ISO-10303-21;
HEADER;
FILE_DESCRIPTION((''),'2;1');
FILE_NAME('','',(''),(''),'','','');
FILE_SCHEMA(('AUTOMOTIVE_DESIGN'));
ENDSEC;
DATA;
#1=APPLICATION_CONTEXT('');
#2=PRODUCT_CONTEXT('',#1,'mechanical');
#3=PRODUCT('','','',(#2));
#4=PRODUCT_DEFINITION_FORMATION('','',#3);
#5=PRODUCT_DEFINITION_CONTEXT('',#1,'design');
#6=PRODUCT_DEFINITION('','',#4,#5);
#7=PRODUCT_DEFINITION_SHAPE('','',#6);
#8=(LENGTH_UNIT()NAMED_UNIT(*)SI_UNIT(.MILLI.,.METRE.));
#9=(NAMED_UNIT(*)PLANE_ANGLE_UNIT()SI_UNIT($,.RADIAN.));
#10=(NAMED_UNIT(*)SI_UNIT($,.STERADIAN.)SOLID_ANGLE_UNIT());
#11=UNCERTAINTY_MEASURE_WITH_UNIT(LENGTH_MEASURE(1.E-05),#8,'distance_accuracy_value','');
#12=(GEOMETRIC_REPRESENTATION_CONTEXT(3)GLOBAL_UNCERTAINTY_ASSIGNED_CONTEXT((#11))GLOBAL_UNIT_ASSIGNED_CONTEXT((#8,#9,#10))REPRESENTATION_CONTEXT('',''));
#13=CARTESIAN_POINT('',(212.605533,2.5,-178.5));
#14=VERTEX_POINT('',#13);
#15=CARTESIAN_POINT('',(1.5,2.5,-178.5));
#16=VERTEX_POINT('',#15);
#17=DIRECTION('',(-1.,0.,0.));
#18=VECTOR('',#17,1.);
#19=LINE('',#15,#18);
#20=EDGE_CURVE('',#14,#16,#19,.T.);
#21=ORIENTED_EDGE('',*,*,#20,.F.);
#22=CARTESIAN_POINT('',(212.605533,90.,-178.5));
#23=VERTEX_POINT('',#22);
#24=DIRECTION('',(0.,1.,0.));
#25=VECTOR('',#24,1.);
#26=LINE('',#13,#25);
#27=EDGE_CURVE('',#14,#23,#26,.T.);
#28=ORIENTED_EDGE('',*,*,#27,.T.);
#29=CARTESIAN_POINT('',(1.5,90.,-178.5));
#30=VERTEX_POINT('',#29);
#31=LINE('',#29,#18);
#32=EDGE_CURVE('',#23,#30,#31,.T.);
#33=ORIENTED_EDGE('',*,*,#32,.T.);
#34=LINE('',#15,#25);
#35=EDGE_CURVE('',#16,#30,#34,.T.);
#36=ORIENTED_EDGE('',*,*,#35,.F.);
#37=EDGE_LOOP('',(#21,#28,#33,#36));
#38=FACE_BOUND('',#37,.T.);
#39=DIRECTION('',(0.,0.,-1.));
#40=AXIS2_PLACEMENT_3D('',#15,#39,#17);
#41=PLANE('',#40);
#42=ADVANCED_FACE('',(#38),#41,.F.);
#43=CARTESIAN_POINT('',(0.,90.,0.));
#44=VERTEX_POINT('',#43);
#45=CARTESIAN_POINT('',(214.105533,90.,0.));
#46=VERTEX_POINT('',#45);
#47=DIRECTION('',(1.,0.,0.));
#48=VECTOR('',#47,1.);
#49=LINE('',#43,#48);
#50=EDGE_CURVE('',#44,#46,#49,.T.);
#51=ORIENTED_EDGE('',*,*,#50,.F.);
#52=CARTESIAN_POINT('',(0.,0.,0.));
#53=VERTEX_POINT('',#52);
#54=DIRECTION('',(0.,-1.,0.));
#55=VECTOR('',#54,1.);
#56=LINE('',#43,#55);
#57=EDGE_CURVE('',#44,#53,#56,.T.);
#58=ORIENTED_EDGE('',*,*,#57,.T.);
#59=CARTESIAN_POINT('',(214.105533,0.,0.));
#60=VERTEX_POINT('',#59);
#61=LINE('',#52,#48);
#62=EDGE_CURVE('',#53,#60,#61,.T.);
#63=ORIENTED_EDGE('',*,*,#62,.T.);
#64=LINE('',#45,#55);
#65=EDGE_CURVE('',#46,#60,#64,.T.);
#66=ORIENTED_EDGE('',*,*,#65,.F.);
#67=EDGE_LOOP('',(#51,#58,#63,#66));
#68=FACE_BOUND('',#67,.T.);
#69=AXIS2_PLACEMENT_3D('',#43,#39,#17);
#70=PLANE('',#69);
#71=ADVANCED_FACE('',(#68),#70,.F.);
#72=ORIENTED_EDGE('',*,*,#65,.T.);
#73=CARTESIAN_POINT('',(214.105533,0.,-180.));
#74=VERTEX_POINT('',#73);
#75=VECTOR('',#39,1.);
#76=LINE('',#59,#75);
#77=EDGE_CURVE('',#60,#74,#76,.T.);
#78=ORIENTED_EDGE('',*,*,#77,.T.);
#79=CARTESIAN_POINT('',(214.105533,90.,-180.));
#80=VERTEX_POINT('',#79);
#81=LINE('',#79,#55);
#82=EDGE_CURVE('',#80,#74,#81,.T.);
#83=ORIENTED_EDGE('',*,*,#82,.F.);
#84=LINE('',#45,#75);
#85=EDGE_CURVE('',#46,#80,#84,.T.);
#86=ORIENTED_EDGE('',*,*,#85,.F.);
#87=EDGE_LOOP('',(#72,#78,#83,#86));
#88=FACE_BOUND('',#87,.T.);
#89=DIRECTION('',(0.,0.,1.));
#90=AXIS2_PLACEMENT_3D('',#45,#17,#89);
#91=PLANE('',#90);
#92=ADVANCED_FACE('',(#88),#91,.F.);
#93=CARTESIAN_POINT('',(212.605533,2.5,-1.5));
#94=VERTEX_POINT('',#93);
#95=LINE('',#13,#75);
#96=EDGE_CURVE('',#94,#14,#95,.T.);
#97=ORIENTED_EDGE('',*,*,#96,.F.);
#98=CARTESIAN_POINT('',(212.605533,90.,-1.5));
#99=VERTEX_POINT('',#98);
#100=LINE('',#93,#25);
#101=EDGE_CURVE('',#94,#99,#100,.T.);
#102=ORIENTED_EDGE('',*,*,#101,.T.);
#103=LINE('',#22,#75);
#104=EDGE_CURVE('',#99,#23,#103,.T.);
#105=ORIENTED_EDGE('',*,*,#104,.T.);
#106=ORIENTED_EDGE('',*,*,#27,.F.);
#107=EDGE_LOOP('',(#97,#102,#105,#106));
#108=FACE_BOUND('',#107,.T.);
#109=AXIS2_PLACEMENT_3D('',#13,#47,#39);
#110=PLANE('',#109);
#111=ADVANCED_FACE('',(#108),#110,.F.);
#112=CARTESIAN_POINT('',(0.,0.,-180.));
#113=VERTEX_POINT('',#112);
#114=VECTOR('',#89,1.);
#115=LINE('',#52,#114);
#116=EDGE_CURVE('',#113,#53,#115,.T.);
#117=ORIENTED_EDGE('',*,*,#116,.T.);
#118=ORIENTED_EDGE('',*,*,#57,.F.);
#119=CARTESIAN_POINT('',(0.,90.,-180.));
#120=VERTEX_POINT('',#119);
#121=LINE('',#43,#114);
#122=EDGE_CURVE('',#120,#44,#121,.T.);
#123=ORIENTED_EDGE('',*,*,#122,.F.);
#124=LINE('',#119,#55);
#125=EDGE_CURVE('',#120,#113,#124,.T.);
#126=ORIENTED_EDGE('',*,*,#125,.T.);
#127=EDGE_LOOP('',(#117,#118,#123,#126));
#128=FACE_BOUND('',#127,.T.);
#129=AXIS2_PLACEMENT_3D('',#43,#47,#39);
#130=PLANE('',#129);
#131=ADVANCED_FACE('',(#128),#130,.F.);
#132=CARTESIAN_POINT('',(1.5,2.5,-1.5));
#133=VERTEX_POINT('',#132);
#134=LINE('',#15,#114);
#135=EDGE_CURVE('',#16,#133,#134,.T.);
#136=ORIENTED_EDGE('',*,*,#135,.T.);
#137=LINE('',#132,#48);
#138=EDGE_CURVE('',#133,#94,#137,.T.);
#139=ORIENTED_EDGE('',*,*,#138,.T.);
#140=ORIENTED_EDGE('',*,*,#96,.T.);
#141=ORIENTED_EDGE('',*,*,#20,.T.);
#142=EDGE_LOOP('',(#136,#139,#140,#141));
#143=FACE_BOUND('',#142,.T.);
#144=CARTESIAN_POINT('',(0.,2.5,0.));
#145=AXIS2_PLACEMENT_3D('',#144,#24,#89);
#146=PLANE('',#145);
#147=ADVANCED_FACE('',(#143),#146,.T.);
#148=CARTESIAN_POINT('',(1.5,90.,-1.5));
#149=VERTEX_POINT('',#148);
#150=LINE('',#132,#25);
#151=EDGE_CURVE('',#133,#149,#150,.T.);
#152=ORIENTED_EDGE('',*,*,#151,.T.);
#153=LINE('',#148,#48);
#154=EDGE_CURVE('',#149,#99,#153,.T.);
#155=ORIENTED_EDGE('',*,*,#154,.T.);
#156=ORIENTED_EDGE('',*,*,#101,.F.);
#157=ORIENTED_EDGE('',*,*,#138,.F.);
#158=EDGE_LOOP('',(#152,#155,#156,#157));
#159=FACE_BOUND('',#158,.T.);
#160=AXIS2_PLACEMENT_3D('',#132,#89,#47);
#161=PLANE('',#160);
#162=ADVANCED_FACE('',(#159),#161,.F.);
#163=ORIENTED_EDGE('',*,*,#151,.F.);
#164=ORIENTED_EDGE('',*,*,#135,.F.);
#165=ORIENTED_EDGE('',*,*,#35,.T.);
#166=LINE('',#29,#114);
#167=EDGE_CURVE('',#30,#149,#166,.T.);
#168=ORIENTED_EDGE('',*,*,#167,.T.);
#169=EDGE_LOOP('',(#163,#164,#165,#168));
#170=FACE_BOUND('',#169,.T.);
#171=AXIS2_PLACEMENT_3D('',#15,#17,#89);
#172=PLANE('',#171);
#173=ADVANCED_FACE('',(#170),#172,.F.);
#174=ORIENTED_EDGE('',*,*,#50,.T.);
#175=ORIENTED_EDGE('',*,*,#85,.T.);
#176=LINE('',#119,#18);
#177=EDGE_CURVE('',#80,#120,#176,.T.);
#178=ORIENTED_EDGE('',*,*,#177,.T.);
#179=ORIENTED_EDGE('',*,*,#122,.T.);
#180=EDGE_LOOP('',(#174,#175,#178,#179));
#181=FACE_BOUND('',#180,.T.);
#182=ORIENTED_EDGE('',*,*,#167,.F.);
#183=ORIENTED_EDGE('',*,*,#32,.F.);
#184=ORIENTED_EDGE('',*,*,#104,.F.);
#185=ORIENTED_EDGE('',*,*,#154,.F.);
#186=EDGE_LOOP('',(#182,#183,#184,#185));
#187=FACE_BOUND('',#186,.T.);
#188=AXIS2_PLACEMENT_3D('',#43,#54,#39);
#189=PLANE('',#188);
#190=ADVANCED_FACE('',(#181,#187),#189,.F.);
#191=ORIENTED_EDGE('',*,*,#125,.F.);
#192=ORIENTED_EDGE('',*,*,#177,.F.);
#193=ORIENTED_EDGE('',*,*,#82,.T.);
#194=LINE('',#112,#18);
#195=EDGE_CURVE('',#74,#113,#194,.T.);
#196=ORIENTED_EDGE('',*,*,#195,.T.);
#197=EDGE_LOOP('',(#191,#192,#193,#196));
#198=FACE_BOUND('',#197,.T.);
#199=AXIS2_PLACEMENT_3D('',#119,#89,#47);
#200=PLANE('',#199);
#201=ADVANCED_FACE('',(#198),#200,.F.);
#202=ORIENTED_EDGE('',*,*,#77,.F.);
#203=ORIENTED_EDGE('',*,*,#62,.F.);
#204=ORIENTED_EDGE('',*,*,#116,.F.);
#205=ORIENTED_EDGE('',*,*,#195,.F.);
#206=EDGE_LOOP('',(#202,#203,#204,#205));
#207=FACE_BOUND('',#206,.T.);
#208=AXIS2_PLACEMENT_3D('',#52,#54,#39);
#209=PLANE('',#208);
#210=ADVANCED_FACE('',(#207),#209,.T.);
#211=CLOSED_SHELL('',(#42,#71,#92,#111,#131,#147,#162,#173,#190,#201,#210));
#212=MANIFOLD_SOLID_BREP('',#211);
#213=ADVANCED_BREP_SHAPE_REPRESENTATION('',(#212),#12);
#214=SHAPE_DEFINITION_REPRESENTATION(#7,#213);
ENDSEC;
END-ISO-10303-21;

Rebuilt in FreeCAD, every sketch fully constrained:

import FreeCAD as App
import Part
import Sketcher
from FreeCAD import Vector


def add_polygon(sketch, points):
    """Adds a closed chain of lines whose ends are joined by coincident constraints."""
    first, n = sketch.GeometryCount, len(points)
    for a, b in zip(points, points[1:] + points[:1]):
        sketch.addGeometry(Part.LineSegment(App.Vector(*a, 0), App.Vector(*b, 0)), False)
    for i in range(n):
        sketch.addConstraint(Sketcher.Constraint("Coincident", first + i, 2, first + (i + 1) % n, 1))

doc = App.newDocument("Part")
params = doc.addObject("Spreadsheet::Sheet", "Params")
for row, (alias, value) in enumerate([
    ("sketch1_height", "180 mm"),
    ("pad1_length", "90 mm"),
    ("sketch2_height", "177 mm"),
    ("pocket1_length", "87.5 mm"),
], start=1):
    params.set(f"A{row}", alias)
    params.set(f"B{row}", "=" + value)
    params.setAlias(f"B{row}", alias)

body = doc.addObject("PartDesign::Body", "Body")

sketch1 = doc.addObject("Sketcher::SketchObject", "Sketch")
body.addObject(sketch1)
sketch1.AttachmentSupport = (doc.XZ_Plane, [""])
sketch1.MapMode = "FlatFace"
add_polygon(sketch1, [(0, -180), (0, 0), (214, 0), (214, -180)])
sketch1.addConstraint([
    Sketcher.Constraint("Vertical", 0),
    Sketcher.Constraint("Horizontal", 1),
    Sketcher.Constraint("Vertical", 2),
    Sketcher.Constraint("Horizontal", 3),
    Sketcher.Constraint("Coincident", 0, 2, -1, 1),
    Sketcher.Constraint("DistanceY", 0, 1, 0, 2, 180.0),
    Sketcher.Constraint("DistanceX", 1, 1, 1, 2, 214.105533),
])
sketch1.setExpression("Constraints[9]", "Params.sketch1_height")
pad1 = doc.addObject("PartDesign::Pad", "Pad")
body.addObject(pad1)
pad1.Profile = sketch1
pad1.setExpression("Length", "Params.pad1_length")
pad1.Reversed = True

sketch2 = doc.addObject("Sketcher::SketchObject", "Sketch001")
body.addObject(sketch2)
sketch2.AttachmentSupport = (doc.XZ_Plane, [""])
sketch2.MapMode = "FlatFace"
sketch2.AttachmentOffset = App.Placement(Vector(0, 0, -90), App.Rotation())
add_polygon(sketch2, [(2, -178), (2, -2), (213, -2), (213, -178)])
sketch2.addConstraint([
    Sketcher.Constraint("Vertical", 0),
    Sketcher.Constraint("Horizontal", 1),
    Sketcher.Constraint("Vertical", 2),
    Sketcher.Constraint("Horizontal", 3),
    Sketcher.Constraint("DistanceY", 0, 1, 0, 2, 177.0),
    Sketcher.Constraint("DistanceX", -1, 1, 0, 2, 1.5),
    Sketcher.Constraint("DistanceY", 0, 2, -1, 1, 1.5),
    Sketcher.Constraint("DistanceX", 1, 1, 1, 2, 211.105533),
])
sketch2.setExpression("Constraints[8]", "Params.sketch2_height")
pocket1 = doc.addObject("PartDesign::Pocket", "Pocket")
body.addObject(pocket1)
pocket1.Profile = sketch2
pocket1.setExpression("Length", "Params.pocket1_length")
pocket1.Reversed = True

doc.recompute()
